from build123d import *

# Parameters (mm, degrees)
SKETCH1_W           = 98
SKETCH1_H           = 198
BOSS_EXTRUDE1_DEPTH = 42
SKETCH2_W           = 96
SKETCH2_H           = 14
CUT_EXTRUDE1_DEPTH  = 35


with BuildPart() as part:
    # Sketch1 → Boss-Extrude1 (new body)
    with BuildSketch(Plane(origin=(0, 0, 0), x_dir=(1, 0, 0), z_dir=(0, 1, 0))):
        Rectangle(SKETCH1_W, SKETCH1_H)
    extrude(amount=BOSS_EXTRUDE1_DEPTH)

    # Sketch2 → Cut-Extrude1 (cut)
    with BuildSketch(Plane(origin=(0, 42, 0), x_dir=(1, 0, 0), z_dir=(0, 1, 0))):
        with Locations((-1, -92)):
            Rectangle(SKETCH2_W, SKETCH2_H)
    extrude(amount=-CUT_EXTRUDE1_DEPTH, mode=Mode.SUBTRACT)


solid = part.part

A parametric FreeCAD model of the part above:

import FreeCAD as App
import Part
import Sketcher

V = App.Vector

doc = App.newDocument("Part")
body = doc.addObject("PartDesign::Body", "Body")

# Sketch on XZ plane
sketch1 = doc.addObject("Sketcher::SketchObject", "Sketch")
body.addObject(sketch1)
sketch1.AttachmentSupport = (doc.XZ_Plane, [""])
sketch1.MapMode = "FlatFace"
sketch1.addGeometry(Part.LineSegment(V(-49, -99, 0), V(-49, 99, 0)), False)
sketch1.addGeometry(Part.LineSegment(V(-49, 99, 0), V(49, 99, 0)), False)
sketch1.addGeometry(Part.LineSegment(V(49, 99, 0), V(49, -99, 0)), False)
sketch1.addGeometry(Part.LineSegment(V(49, -99, 0), V(-49, -99, 0)), False)
sketch1.addConstraint(Sketcher.Constraint("Coincident", 0, 2, 1, 1))
sketch1.addConstraint(Sketcher.Constraint("Coincident", 1, 2, 2, 1))
sketch1.addConstraint(Sketcher.Constraint("Coincident", 2, 2, 3, 1))
sketch1.addConstraint(Sketcher.Constraint("Coincident", 3, 2, 0, 1))
sketch1.addConstraint(Sketcher.Constraint("Vertical", 0))
sketch1.addConstraint(Sketcher.Constraint("Horizontal", 1))
sketch1.addConstraint(Sketcher.Constraint("Vertical", 2))
sketch1.addConstraint(Sketcher.Constraint("Horizontal", 3))
sketch1.addConstraint(Sketcher.Constraint("Symmetric", 0, 2, 2, 2, -1, 1))
sketch1.addConstraint(Sketcher.Constraint("DistanceX", 1, 1, 1, 2, 98.0))
sketch1.addConstraint(Sketcher.Constraint("DistanceY", 0, 1, 0, 2, 198.0))
pad1 = doc.addObject("PartDesign::Pad", "Pad")
body.addObject(pad1)
pad1.Profile = sketch1
pad1.Length = 42
pad1.Reversed = True

# Sketch on XZ plane
sketch2 = doc.addObject("Sketcher::SketchObject", "Sketch001")
body.addObject(sketch2)
sketch2.AttachmentSupport = (doc.XZ_Plane, [""])
sketch2.MapMode = "FlatFace"
sketch2.AttachmentOffset = App.Placement(V(0, 0, -42), App.Rotation())
sketch2.addGeometry(Part.LineSegment(V(-49, 85, 0), V(-49, 99, 0)), False)
sketch2.addGeometry(Part.LineSegment(V(-49, 99, 0), V(47, 99, 0)), False)
sketch2.addGeometry(Part.LineSegment(V(47, 99, 0), V(47, 85, 0)), False)
sketch2.addGeometry(Part.LineSegment(V(47, 85, 0), V(-49, 85, 0)), False)
sketch2.addConstraint(Sketcher.Constraint("Coincident", 0, 2, 1, 1))
sketch2.addConstraint(Sketcher.Constraint("Coincident", 1, 2, 2, 1))
sketch2.addConstraint(Sketcher.Constraint("Coincident", 2, 2, 3, 1))
sketch2.addConstraint(Sketcher.Constraint("Coincident", 3, 2, 0, 1))
sketch2.addConstraint(Sketcher.Constraint("Vertical", 0))
sketch2.addConstraint(Sketcher.Constraint("Horizontal", 1))
sketch2.addConstraint(Sketcher.Constraint("Vertical", 2))
sketch2.addConstraint(Sketcher.Constraint("Horizontal", 3))
sketch2.addConstraint(Sketcher.Constraint("DistanceX", 1, 1, 1, 2, 96.0))
sketch2.addConstraint(Sketcher.Constraint("DistanceY", 0, 1, 0, 2, 14.0))
sketch2.addConstraint(Sketcher.Constraint("DistanceX", 0, 2, -1, 1, 49.0))
sketch2.addConstraint(Sketcher.Constraint("DistanceY", -1, 1, 0, 2, 99.0))
pocket1 = doc.addObject("PartDesign::Pocket", "Pocket")
body.addObject(pocket1)
pocket1.Profile = sketch2
pocket1.Length = 35
pocket1.Reversed = True

doc.recompute()
